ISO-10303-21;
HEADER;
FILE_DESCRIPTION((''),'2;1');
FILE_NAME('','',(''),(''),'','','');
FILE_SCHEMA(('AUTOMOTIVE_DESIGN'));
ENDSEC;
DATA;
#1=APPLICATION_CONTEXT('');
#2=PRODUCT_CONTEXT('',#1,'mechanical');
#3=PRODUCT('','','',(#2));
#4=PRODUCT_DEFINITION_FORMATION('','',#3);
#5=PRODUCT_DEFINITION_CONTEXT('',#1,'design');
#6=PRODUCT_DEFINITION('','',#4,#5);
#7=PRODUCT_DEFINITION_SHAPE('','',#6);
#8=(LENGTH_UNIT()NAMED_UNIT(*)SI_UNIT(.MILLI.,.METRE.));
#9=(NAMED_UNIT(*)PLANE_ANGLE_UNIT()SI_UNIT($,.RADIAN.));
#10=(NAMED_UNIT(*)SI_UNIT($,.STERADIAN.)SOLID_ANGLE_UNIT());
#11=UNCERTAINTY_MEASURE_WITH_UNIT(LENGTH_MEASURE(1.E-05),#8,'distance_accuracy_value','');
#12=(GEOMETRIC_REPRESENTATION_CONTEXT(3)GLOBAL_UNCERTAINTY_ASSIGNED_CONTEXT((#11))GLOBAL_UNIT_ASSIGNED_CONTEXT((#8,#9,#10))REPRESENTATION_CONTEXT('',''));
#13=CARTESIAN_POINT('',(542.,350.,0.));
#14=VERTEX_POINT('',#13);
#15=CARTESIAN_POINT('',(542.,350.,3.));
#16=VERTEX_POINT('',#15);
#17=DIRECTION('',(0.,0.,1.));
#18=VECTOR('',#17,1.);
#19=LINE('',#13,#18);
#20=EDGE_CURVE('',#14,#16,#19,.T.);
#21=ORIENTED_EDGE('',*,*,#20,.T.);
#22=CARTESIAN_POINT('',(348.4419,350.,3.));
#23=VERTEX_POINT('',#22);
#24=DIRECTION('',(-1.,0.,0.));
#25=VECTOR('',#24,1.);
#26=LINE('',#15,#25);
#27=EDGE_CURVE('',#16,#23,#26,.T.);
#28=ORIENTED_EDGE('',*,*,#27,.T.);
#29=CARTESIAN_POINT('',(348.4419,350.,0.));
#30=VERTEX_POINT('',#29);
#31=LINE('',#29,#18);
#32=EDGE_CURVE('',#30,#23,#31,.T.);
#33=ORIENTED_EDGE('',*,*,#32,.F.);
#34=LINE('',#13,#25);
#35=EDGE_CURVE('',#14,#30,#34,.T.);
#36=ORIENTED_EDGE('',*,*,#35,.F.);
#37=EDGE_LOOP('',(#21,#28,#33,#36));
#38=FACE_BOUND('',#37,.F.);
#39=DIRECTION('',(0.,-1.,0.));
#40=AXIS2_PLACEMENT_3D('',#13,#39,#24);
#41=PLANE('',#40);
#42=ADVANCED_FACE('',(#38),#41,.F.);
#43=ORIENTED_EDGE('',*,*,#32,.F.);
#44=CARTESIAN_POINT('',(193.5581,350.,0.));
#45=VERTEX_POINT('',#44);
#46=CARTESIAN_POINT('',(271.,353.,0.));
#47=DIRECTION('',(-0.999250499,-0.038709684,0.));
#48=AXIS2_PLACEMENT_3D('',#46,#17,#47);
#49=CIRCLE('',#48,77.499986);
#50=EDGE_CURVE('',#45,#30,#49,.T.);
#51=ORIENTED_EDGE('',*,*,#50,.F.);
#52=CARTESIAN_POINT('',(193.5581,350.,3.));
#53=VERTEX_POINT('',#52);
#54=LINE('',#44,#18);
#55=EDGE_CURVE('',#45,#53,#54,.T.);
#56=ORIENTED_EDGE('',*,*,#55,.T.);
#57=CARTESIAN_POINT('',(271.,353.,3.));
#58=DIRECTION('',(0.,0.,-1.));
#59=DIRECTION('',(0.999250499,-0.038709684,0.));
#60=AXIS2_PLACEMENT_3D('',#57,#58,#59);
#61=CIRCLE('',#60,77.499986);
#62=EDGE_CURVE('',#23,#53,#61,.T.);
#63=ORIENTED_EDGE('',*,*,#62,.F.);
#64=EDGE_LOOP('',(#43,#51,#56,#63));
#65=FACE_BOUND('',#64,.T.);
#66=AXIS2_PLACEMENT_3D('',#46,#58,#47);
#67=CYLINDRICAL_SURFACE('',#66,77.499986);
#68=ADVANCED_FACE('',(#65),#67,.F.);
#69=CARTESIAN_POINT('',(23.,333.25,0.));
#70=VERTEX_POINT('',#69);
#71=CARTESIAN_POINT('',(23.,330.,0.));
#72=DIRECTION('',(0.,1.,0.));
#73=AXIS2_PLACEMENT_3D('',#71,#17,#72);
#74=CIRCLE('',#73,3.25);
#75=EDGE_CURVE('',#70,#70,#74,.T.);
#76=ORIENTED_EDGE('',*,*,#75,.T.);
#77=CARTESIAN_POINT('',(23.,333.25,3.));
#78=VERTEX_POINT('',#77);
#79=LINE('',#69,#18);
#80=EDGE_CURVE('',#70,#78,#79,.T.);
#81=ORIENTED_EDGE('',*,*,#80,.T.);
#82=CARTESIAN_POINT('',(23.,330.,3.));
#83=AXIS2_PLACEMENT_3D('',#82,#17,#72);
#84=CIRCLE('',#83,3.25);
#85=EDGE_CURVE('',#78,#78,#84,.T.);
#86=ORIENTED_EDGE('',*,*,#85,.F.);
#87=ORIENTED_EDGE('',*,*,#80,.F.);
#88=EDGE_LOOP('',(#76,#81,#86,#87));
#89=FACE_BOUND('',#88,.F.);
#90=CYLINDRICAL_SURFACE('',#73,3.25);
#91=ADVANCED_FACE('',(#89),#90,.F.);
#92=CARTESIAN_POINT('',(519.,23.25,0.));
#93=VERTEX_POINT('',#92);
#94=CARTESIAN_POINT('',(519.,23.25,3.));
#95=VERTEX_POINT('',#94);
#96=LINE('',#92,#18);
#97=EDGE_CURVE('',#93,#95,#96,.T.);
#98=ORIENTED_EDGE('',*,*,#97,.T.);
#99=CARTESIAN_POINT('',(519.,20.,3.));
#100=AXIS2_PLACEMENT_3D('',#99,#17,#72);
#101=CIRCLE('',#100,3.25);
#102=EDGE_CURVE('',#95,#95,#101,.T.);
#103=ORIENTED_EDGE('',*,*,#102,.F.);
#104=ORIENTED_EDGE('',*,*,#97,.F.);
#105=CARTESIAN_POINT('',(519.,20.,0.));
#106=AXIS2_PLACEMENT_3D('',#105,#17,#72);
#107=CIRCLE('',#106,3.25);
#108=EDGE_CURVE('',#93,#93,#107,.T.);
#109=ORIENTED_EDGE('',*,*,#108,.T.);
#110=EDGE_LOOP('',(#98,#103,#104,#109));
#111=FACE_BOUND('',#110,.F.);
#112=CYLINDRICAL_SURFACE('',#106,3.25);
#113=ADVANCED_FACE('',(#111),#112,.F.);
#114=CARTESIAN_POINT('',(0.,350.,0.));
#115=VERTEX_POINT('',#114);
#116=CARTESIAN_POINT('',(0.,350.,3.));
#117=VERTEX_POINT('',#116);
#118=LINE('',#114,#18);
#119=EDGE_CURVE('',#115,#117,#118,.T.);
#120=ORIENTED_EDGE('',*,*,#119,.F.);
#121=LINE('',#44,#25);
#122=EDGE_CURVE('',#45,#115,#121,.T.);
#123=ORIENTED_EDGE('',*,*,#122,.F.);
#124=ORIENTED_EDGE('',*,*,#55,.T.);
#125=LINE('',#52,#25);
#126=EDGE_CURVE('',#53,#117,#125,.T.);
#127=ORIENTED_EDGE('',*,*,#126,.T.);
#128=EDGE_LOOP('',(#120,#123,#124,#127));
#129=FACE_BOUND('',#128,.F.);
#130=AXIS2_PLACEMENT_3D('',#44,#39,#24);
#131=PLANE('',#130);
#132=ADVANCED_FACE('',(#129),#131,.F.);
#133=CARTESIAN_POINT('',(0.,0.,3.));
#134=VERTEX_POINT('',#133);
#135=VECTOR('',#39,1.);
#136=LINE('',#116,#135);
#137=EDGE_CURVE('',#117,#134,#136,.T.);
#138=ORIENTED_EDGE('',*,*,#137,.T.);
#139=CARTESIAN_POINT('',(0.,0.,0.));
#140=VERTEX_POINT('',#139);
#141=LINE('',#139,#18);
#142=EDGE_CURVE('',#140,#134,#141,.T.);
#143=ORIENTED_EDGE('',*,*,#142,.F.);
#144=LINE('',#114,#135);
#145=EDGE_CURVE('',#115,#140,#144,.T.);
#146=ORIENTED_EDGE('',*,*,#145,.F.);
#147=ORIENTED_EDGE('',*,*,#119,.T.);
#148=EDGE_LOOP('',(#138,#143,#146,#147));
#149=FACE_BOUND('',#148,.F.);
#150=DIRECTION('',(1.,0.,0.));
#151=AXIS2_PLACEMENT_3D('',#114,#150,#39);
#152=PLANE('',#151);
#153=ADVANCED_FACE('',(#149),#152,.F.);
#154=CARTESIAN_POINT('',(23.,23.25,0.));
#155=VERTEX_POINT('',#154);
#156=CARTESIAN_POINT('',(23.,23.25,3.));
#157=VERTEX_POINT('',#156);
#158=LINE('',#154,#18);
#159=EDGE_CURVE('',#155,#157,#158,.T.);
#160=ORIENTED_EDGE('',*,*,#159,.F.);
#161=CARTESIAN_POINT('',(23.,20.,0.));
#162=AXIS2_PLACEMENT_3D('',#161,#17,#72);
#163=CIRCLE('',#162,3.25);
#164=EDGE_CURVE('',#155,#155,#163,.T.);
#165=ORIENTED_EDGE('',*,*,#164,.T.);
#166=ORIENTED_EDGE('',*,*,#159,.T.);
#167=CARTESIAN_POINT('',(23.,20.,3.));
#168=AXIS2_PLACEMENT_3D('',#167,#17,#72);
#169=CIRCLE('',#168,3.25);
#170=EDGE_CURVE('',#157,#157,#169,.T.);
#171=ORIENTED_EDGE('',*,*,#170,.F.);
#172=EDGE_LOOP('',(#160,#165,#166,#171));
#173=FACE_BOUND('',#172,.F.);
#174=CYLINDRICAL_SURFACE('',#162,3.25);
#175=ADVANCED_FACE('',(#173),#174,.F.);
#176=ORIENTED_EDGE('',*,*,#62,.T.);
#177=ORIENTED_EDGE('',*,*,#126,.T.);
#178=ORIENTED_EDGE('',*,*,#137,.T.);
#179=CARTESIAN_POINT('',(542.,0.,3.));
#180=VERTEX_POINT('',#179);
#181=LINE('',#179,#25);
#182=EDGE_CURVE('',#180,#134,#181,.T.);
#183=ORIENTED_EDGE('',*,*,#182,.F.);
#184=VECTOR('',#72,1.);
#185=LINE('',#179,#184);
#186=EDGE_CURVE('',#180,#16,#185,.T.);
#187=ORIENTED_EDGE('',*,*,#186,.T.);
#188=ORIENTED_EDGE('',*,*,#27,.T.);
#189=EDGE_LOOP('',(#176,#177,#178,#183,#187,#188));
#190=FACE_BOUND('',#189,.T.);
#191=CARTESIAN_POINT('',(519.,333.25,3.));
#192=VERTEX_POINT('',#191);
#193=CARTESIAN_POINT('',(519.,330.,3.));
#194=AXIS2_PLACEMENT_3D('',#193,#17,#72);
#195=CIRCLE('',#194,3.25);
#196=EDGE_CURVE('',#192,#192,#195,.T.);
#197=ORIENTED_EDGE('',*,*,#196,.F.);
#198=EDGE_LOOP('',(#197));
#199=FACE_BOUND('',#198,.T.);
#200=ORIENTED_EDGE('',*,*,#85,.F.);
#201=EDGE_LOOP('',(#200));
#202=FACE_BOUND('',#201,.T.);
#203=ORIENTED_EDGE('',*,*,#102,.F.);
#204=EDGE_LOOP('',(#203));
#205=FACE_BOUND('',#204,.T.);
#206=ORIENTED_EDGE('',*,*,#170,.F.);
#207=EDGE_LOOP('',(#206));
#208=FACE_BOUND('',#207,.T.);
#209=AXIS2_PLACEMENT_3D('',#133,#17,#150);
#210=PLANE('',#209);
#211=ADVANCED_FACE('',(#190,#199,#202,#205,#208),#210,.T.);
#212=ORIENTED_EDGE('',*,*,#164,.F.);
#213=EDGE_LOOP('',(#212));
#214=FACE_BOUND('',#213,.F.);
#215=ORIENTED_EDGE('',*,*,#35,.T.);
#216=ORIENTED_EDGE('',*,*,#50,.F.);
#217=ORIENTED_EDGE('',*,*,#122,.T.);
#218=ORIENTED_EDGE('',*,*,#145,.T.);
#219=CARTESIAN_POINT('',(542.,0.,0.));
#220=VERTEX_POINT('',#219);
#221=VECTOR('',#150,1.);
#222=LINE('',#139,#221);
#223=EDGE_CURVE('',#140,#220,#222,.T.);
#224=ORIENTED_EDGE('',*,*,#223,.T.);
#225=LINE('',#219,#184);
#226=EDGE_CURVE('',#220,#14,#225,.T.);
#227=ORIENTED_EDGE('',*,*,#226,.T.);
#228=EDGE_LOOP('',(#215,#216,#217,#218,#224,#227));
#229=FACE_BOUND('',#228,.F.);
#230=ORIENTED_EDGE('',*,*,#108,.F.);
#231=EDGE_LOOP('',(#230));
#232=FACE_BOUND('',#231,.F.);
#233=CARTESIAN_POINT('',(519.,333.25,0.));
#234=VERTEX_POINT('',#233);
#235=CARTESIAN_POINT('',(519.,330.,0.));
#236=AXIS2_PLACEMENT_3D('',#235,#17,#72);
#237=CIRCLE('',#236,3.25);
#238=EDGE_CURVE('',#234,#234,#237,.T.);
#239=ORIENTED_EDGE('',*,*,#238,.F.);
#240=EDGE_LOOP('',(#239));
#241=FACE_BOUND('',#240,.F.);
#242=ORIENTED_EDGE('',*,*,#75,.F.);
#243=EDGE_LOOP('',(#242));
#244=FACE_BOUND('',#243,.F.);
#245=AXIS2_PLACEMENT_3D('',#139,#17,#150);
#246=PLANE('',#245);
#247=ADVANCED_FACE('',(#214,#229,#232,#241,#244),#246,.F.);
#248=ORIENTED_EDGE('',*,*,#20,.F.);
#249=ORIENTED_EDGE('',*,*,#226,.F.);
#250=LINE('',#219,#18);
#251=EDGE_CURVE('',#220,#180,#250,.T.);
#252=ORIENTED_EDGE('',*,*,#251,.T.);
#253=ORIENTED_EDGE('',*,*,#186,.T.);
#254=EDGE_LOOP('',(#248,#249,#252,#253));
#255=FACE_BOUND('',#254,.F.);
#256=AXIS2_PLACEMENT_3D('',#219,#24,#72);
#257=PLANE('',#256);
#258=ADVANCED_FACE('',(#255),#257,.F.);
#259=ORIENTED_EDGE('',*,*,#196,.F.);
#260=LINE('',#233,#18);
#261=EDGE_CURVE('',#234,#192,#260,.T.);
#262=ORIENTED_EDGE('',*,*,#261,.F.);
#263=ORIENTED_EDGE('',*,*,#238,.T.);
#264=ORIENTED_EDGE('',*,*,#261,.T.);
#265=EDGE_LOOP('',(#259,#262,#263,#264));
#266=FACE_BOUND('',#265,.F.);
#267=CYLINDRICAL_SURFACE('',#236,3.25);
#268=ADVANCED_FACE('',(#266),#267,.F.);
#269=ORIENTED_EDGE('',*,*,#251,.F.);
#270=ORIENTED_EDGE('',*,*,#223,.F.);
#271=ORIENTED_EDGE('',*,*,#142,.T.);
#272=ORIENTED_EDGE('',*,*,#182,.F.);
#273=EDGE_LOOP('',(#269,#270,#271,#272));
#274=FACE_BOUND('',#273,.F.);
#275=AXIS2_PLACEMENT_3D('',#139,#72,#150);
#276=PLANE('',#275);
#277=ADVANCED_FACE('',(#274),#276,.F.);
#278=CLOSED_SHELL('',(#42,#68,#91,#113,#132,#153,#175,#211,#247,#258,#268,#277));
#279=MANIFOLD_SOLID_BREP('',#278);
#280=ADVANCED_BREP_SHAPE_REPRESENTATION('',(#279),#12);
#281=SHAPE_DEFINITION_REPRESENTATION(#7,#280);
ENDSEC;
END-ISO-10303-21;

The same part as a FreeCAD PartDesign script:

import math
import FreeCAD as App
import Part
import Sketcher

V = App.Vector
Q = App.Units.Quantity

doc = App.newDocument("Part")
body = doc.addObject("PartDesign::Body", "Body")

sketch1 = body.newObject("Sketcher::SketchObject", "Sketch")
sketch1.AttachmentSupport = (doc.getObject("XY_Plane"), [""])
sketch1.MapMode = "FlatFace"
sketch1.addGeometry(Part.LineSegment(V(0, 350, 0), V(0, 0, 0)), False)
sketch1.addGeometry(Part.LineSegment(V(0, 0, 0), V(542, 0, 0)), False)
sketch1.addGeometry(Part.LineSegment(V(542, 0, 0), V(542, 350, 0)), False)
sketch1.addGeometry(Part.LineSegment(V(542, 350, 0), V(348, 350, 0)), False)
sketch1.addGeometry(Part.ArcOfCircle(Part.Circle(V(271, 353, 0), V(0, 0, 1), 77), math.radians(-178), math.radians(-2)), False)
sketch1.addGeometry(Part.LineSegment(V(194, 350, 0), V(0, 350, 0)), False)
sketch1.addConstraint(Sketcher.Constraint("Coincident", 0, 2, 1, 1))
sketch1.addConstraint(Sketcher.Constraint("Coincident", 1, 2, 2, 1))
sketch1.addConstraint(Sketcher.Constraint("Coincident", 2, 2, 3, 1))
sketch1.addConstraint(Sketcher.Constraint("Coincident", 3, 2, 4, 2))
sketch1.addConstraint(Sketcher.Constraint("Coincident", 4, 1, 5, 1))
sketch1.addConstraint(Sketcher.Constraint("Coincident", 5, 2, 0, 1))
sketch1.addConstraint(Sketcher.Constraint("Vertical", 0))
sketch1.addConstraint(Sketcher.Constraint("Horizontal", 1))
sketch1.addConstraint(Sketcher.Constraint("Vertical", 2))
sketch1.addConstraint(Sketcher.Constraint("Horizontal", 3))
sketch1.addConstraint(Sketcher.Constraint("Horizontal", 5))
sketch1.addConstraint(Sketcher.Constraint("Coincident", 0, 2, -1, 1))
sketch1.addConstraint(Sketcher.Constraint("Horizontal", 3, 2, 4, 1))
sketch1.addConstraint(Sketcher.Constraint("Equal", 3, 5))
sketch1.addConstraint(Sketcher.Constraint("Radius", 4, Q("77.5 mm")))
sketch1.addConstraint(Sketcher.Constraint("DistanceX", 1, 1, 1, 2, Q("542 mm")))
sketch1.addConstraint(Sketcher.Constraint("DistanceY", 0, 2, 0, 1, Q("350 mm")))
sketch1.addConstraint(Sketcher.Constraint("DistanceY", -1, 1, 4, 3, Q("353 mm")))
pad1 = body.newObject("PartDesign::Pad", "Pad")
pad1.Profile = sketch1
pad1.Length = 3

sketch2 = body.newObject("Sketcher::SketchObject", "Sketch001")
sketch2.AttachmentSupport = (doc.getObject("XY_Plane"), [""])
sketch2.MapMode = "FlatFace"
sketch2.addGeometry(Part.Circle(V(23, 330, 0), V(0, 0, 1), 3.2), False)
sketch2.addGeometry(Part.Circle(V(519, 330, 0), V(0, 0, 1), 3.2), False)
sketch2.addGeometry(Part.Circle(V(519, 20, 0), V(0, 0, 1), 3.2), False)
sketch2.addGeometry(Part.Circle(V(23, 20, 0), V(0, 0, 1), 3.2), False)
sketch2.addConstraint(Sketcher.Constraint("Equal", 0, 1))
sketch2.addConstraint(Sketcher.Constraint("Equal", 1, 2))
sketch2.addConstraint(Sketcher.Constraint("Equal", 2, 3))
sketch2.addConstraint(Sketcher.Constraint("Horizontal", 0, 3, 1, 3))
sketch2.addConstraint(Sketcher.Constraint("Horizontal", 2, 3, 3, 3))
sketch2.addConstraint(Sketcher.Constraint("Vertical", 1, 3, 2, 3))
sketch2.addConstraint(Sketcher.Constraint("Vertical", 0, 3, 3, 3))
sketch2.addConstraint(Sketcher.Constraint("Diameter", 0, Q("6.5 mm")))
sketch2.addConstraint(Sketcher.Constraint("DistanceX", -1, 1, 0, 3, Q("23 mm")))
sketch2.addConstraint(Sketcher.Constraint("DistanceY", -1, 1, 0, 3, Q("330 mm")))
sketch2.addConstraint(Sketcher.Constraint("DistanceX", -1, 1, 1, 3, Q("519 mm")))
sketch2.addConstraint(Sketcher.Constraint("DistanceY", -1, 1, 2, 3, Q("20 mm")))
doc.recompute()
hole = body.newObject("PartDesign::Hole", "Hole")
hole.Profile = sketch2
hole.ThreadType = "None"
hole.Diameter = 6.5
hole.DepthType = "ThroughAll"
hole.Reversed = True

doc.recompute()
